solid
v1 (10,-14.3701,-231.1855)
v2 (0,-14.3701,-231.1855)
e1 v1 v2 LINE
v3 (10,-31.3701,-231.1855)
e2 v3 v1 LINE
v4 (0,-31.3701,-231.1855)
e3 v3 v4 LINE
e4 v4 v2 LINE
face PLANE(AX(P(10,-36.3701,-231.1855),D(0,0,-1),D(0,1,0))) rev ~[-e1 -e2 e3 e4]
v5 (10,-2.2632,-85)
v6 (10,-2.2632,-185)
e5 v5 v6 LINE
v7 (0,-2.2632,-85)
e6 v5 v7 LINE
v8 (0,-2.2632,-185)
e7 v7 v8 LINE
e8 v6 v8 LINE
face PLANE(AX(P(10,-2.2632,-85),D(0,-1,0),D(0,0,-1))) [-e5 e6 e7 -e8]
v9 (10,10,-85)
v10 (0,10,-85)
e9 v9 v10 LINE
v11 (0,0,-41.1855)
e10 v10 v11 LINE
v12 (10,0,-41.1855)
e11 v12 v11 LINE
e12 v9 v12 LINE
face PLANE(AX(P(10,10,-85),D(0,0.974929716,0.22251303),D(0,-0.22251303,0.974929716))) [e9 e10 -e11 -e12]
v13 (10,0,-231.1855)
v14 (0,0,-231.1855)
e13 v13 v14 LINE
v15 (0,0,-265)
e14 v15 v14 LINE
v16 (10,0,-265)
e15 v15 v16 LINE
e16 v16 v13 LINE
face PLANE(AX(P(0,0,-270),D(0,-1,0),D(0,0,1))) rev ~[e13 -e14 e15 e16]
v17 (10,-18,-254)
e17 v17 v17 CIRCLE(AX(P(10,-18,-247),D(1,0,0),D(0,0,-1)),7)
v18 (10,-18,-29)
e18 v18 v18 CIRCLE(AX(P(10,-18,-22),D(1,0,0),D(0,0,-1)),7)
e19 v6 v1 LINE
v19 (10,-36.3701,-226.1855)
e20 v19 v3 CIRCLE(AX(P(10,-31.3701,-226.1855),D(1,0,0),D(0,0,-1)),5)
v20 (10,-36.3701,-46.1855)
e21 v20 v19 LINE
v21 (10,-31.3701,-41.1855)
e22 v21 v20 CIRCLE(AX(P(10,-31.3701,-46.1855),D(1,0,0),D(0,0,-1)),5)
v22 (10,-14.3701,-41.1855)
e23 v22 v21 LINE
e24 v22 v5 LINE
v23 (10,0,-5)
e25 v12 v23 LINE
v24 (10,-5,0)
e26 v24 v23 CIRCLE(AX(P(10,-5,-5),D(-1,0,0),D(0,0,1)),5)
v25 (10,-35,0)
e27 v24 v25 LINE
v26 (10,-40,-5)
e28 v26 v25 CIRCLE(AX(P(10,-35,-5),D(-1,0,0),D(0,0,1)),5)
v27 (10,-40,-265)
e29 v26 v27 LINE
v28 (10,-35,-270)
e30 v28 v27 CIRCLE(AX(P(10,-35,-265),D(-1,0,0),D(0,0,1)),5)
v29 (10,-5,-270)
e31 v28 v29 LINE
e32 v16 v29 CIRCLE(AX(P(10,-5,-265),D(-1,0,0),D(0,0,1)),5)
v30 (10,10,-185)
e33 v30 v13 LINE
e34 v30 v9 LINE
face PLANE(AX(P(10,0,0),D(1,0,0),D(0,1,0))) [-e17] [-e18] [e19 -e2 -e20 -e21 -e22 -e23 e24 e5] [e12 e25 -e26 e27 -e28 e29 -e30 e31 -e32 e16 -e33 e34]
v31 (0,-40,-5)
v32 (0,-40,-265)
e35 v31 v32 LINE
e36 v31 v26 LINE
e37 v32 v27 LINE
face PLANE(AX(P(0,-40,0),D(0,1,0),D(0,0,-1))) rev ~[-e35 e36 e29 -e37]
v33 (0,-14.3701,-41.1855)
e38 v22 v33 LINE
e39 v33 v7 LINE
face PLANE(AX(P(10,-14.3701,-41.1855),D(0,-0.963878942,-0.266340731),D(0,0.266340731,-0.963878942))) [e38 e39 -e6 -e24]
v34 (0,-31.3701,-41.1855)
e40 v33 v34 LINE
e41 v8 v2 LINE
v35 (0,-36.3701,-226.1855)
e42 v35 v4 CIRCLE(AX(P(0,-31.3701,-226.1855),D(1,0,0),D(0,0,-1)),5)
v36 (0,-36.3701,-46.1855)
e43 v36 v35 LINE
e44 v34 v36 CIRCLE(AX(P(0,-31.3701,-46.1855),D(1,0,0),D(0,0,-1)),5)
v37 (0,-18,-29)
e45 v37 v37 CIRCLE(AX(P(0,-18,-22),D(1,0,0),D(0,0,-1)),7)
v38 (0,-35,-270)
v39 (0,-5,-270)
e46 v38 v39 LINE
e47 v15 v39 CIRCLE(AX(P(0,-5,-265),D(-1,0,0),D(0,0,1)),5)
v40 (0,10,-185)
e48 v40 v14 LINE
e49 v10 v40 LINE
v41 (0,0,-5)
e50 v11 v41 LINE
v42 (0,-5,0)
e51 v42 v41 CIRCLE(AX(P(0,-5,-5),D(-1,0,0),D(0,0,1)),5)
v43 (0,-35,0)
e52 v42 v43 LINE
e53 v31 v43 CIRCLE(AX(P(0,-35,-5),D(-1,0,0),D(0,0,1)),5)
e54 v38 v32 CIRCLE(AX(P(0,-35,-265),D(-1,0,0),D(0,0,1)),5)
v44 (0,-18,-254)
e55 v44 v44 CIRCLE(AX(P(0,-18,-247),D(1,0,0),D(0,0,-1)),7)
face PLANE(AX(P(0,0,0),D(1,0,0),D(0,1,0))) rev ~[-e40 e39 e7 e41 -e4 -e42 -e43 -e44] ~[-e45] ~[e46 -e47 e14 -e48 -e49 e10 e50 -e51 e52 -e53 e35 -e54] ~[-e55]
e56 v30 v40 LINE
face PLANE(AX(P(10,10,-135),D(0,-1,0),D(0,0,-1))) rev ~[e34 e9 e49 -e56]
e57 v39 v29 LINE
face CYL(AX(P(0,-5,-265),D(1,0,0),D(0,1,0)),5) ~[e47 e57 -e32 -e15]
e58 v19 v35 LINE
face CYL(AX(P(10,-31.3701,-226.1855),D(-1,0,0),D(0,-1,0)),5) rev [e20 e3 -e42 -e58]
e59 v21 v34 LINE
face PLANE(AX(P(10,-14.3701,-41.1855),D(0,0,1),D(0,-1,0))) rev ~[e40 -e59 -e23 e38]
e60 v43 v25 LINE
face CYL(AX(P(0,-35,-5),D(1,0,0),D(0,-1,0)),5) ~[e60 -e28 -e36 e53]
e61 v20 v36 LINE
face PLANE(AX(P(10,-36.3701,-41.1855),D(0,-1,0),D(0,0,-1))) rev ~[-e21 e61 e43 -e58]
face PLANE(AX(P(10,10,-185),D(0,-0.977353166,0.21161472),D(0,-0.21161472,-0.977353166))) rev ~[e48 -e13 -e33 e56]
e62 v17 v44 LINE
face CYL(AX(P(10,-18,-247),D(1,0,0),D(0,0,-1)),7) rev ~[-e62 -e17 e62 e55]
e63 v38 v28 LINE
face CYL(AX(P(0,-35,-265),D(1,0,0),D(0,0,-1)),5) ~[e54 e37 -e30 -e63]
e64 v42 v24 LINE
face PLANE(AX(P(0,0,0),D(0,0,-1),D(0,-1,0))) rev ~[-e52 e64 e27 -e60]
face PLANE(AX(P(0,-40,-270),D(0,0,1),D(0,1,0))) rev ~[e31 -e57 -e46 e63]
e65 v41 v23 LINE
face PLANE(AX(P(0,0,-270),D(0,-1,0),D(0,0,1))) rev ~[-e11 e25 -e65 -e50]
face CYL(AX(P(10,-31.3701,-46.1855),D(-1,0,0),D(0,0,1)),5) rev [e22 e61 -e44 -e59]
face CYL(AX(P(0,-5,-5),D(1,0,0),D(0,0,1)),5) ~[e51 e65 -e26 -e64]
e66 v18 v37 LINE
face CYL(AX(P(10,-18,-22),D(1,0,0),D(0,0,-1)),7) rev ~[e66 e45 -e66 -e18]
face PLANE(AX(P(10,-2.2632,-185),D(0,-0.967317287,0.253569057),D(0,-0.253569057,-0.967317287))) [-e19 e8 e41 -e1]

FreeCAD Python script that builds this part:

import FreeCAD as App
import Part
import Sketcher
Q = App.Units.Quantity


def edges_at(feature, points):
    """Names of the edges that pass closest to the given points."""
    edges = feature.Shape.Edges
    near = lambda p: min(range(len(edges)), key=lambda i: edges[i].distToShape(Part.Vertex(*p))[0])
    return sorted({f"Edge{near(p) + 1}" for p in points})


def add_polygon(sketch, points):
    """Adds a closed chain of lines whose ends are joined by coincident constraints."""
    first, n = sketch.GeometryCount, len(points)
    for a, b in zip(points, points[1:] + points[:1]):
        sketch.addGeometry(Part.LineSegment(App.Vector(*a, 0), App.Vector(*b, 0)), False)
    for i in range(n):
        sketch.addConstraint(Sketcher.Constraint("Coincident", first + i, 2, first + (i + 1) % n, 1))

doc = App.newDocument("Part")
params = doc.addObject("Spreadsheet::Sheet", "Params")
for row, (alias, value) in enumerate([
    ("sketch1_width", "40 mm"),
    ("sketch1_height", "270 mm"),
    ("pad1_length", "10 mm"),
    ("sketch2_diameter", "14 mm"),
    ("sketch3_diameter", "14 mm"),
    ("sketch4_width", "22 mm"),
    ("sketch4_height", "190 mm"),
    ("sketch5_height", "100 mm"),
    ("sketch5_height2", "190 mm"),
    ("pad2_length", "10 mm"),
    ("sketch6_height", "190 mm"),
    ("sketch6_height2", "100 mm"),
    ("fillet_radius", "5 mm"),
], start=1):
    params.set(f"A{row}", alias)
    params.set(f"B{row}", "=" + value)
    params.setAlias(f"B{row}", alias)

body = doc.addObject("PartDesign::Body", "Body")

# Sketch on YZ plane
sketch1 = doc.addObject("Sketcher::SketchObject", "Sketch")
body.addObject(sketch1)
sketch1.AttachmentSupport = (doc.YZ_Plane, [""])
sketch1.MapMode = "FlatFace"
add_polygon(sketch1, [(0, -270), (0, 0), (-40, 0), (-40, -270)])  # lines 0-3
sketch1.addConstraint([
    Sketcher.Constraint("Vertical", 0),
    Sketcher.Constraint("Horizontal", 1),
    Sketcher.Constraint("Vertical", 2),
    Sketcher.Constraint("Horizontal", 3),
    Sketcher.Constraint("Coincident", 0, 2, -1, 1),
    Sketcher.Constraint("DistanceX", 1, 2, 1, 1, Q("40 mm")),
    Sketcher.Constraint("DistanceY", 0, 1, 0, 2, Q("270 mm")),
])
sketch1.setExpression("Constraints[9]", "Params.sketch1_width")
sketch1.setExpression("Constraints[10]", "Params.sketch1_height")
pad1 = doc.addObject("PartDesign::Pad", "Pad")
body.addObject(pad1)
pad1.Profile = sketch1
pad1.setExpression("Length", "Params.pad1_length")

# Sketch on YZ plane
sketch2 = doc.addObject("Sketcher::SketchObject", "Sketch001")
body.addObject(sketch2)
sketch2.AttachmentSupport = (doc.YZ_Plane, [""])
sketch2.MapMode = "FlatFace"
sketch2.AttachmentOffset = App.Placement(App.Vector(0, 0, 10), App.Rotation())
sketch2.addGeometry(Part.Circle(App.Vector(-18, -22, 0), App.Vector(0, 0, 1), 7), False)
sketch2.addConstraint([
    Sketcher.Constraint("Diameter", 0, Q("14 mm")),
    Sketcher.Constraint("DistanceX", 0, 3, -1, 1, Q("18 mm")),
    Sketcher.Constraint("DistanceY", 0, 3, -1, 1, Q("22 mm")),
])
sketch2.setExpression("Constraints[0]", "Params.sketch2_diameter")
pocket1 = doc.addObject("PartDesign::Pocket", "Pocket")
body.addObject(pocket1)
pocket1.Profile = sketch2
pocket1.Type = "ThroughAll"

# Sketch on YZ plane
sketch3 = doc.addObject("Sketcher::SketchObject", "Sketch002")
body.addObject(sketch3)
sketch3.AttachmentSupport = (doc.YZ_Plane, [""])
sketch3.MapMode = "FlatFace"
sketch3.AttachmentOffset = App.Placement(App.Vector(0, 0, 10), App.Rotation())
sketch3.addGeometry(Part.Circle(App.Vector(-18, -247, 0), App.Vector(0, 0, 1), 7), False)
sketch3.addConstraint([
    Sketcher.Constraint("Diameter", 0, Q("14 mm")),
    Sketcher.Constraint("DistanceX", 0, 3, -1, 1, Q("18 mm")),
    Sketcher.Constraint("DistanceY", 0, 3, -1, 1, Q("247 mm")),
])
sketch3.setExpression("Constraints[0]", "Params.sketch3_diameter")
pocket2 = doc.addObject("PartDesign::Pocket", "Pocket001")
body.addObject(pocket2)
pocket2.Profile = sketch3
pocket2.Type = "ThroughAll"

# Sketch on YZ plane
sketch4 = doc.addObject("Sketcher::SketchObject", "Sketch003")
body.addObject(sketch4)
sketch4.AttachmentSupport = (doc.YZ_Plane, [""])
sketch4.MapMode = "FlatFace"
sketch4.AttachmentOffset = App.Placement(App.Vector(0, 0, 10), App.Rotation())
add_polygon(sketch4, [(-14, -41), (-36, -41), (-36, -231), (-14, -231)])  # lines 0-3
sketch4.addConstraint([
    Sketcher.Constraint("Horizontal", 0),
    Sketcher.Constraint("Vertical", 1),
    Sketcher.Constraint("Horizontal", 2),
    Sketcher.Constraint("Vertical", 3),
    Sketcher.Constraint("DistanceX", 0, 2, 0, 1, Q("22 mm")),
    Sketcher.Constraint("DistanceY", 1, 2, 1, 1, Q("190 mm")),
    Sketcher.Constraint("DistanceX", 0, 2, -1, 1, Q("36.37 mm")),
    Sketcher.Constraint("DistanceY", 0, 2, -1, 1, Q("41.1855 mm")),
])
sketch4.setExpression("Constraints[8]", "Params.sketch4_width")
sketch4.setExpression("Constraints[9]", "Params.sketch4_height")
pocket3 = doc.addObject("PartDesign::Pocket", "Pocket002")
body.addObject(pocket3)
pocket3.Profile = sketch4
pocket3.Type = "ThroughAll"

# Sketch on YZ plane
sketch5 = doc.addObject("Sketcher::SketchObject", "Sketch004")
body.addObject(sketch5)
sketch5.AttachmentSupport = (doc.YZ_Plane, [""])
sketch5.MapMode = "FlatFace"
sketch5.AttachmentOffset = App.Placement(App.Vector(0, 0, 10), App.Rotation())
add_polygon(sketch5, [(10, -185), (10, -85), (0, -41), (0, -231)])  # lines 0-3
sketch5.addConstraint([
    Sketcher.Constraint("Vertical", 0),
    Sketcher.Constraint("Vertical", 2),
    Sketcher.Constraint("PointOnObject", 1, 2, -2),
    Sketcher.Constraint("DistanceY", 0, 1, 0, 2, Q("100 mm")),
    Sketcher.Constraint("DistanceY", 2, 2, 2, 1, Q("190 mm")),
    Sketcher.Constraint("DistanceX", -1, 1, 0, 2, Q("10 mm")),
    Sketcher.Constraint("DistanceY", 0, 2, -1, 1, Q("85 mm")),
    Sketcher.Constraint("Distance", 1, Q("44.9412 mm")),
])
sketch5.setExpression("Constraints[7]", "Params.sketch5_height")
sketch5.setExpression("Constraints[8]", "Params.sketch5_height2")
pad2 = doc.addObject("PartDesign::Pad", "Pad001")
body.addObject(pad2)
pad2.Profile = sketch5
pad2.setExpression("Length", "Params.pad2_length")
pad2.Reversed = True

# Sketch on YZ plane
sketch6 = doc.addObject("Sketcher::SketchObject", "Sketch005")
body.addObject(sketch6)
sketch6.AttachmentSupport = (doc.YZ_Plane, [""])
sketch6.MapMode = "FlatFace"
sketch6.AttachmentOffset = App.Placement(App.Vector(0, 0, 10), App.Rotation())
add_polygon(sketch6, [(-2, -85), (-14, -41), (-14, -231), (-2, -185)])  # lines 0-3
sketch6.addConstraint([
    Sketcher.Constraint("Vertical", 1),
    Sketcher.Constraint("Vertical", 3),
    Sketcher.Constraint("DistanceY", 1, 2, 1, 1, Q("190 mm")),
    Sketcher.Constraint("DistanceY", 3, 1, 3, 2, Q("100 mm")),
    Sketcher.Constraint("DistanceY", 2, 2, -1, 1, Q("185 mm")),
    Sketcher.Constraint("Angle", 2, Q("75.3112 deg")),
    Sketcher.Constraint("DistanceX", 0, 2, -1, 1, Q("14.37 mm")),
    Sketcher.Constraint("Distance", 2, Q("47.746 mm")),
])
sketch6.setExpression("Constraints[6]", "Params.sketch6_height")
sketch6.setExpression("Constraints[7]", "Params.sketch6_height2")
pocket4 = doc.addObject("PartDesign::Pocket", "Pocket003")
body.addObject(pocket4)
pocket4.Profile = sketch6
pocket4.Type = "ThroughAll"
doc.recompute()

fillet = doc.addObject("PartDesign::Fillet", "Fillet")
body.addObject(fillet)
fillet.Base = (pocket4, edges_at(pocket4, [
    (5, -40, 0),
    (5, 0, 0),
    (5, -40, -270),
    (5, 0, -270),
    (5, -36.37, -231.185),
    (5, -36.37, -41.185),
]))
fillet.setExpression("Radius", "Params.fillet_radius")

doc.recompute()
